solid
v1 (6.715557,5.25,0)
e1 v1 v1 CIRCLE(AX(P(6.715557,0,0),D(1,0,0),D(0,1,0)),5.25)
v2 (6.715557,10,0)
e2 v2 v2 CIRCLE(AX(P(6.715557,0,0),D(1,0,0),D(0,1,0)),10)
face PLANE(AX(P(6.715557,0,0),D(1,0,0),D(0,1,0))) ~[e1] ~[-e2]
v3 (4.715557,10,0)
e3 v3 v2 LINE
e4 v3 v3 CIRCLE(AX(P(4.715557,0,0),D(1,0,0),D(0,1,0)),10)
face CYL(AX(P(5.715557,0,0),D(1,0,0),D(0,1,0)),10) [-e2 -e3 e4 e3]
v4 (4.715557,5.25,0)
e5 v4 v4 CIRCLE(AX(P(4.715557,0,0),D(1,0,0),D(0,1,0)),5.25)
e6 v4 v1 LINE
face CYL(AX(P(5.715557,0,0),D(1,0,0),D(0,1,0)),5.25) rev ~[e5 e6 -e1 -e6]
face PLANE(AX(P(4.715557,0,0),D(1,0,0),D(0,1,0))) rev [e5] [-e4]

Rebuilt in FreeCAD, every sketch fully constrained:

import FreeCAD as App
import Part
import Sketcher
from FreeCAD import Vector
Q = App.Units.Quantity

doc = App.newDocument("Part")
body = doc.addObject("PartDesign::Body", "Body")

# Sketch on XY plane
sketch1 = body.newObject("Sketcher::SketchObject", "Sketch")
sketch1.AttachmentSupport = (doc.getObject("XY_Plane"), [""])
sketch1.MapMode = "FlatFace"
sketch1.addGeometry([
    Part.LineSegment(Vector(4.7, 10, 0), Vector(4.7, 5.2, 0)),
    Part.LineSegment(Vector(4.7, 5.2, 0), Vector(6.7, 5.2, 0)),
    Part.LineSegment(Vector(6.7, 5.2, 0), Vector(6.7, 10, 0)),
    Part.LineSegment(Vector(6.7, 10, 0), Vector(4.7, 10, 0)),
], False)
sketch1.addConstraint([
    Sketcher.Constraint("Coincident", 0, 2, 1, 1),
    Sketcher.Constraint("Coincident", 1, 2, 2, 1),
    Sketcher.Constraint("Coincident", 2, 2, 3, 1),
    Sketcher.Constraint("Coincident", 3, 2, 0, 1),
    Sketcher.Constraint("Vertical", 0),
    Sketcher.Constraint("Horizontal", 1),
    Sketcher.Constraint("Vertical", 2),
    Sketcher.Constraint("Horizontal", 3),
    Sketcher.Constraint("DistanceX", 1, 1, 1, 2, Q("2 mm")),
    Sketcher.Constraint("DistanceY", -1, 1, 2, 2, Q("10 mm")),
    Sketcher.Constraint("DistanceY", 0, 2, 0, 1, Q("4.75 mm")),
    Sketcher.Constraint("DistanceX", -1, 1, 0, 2, Q("4.715557 mm")),
])
revolution = body.newObject("PartDesign::Revolution", "Revolution")
revolution.Profile = sketch1
revolution.ReferenceAxis = (sketch1, ["H_Axis"])
revolution.Angle = 360

doc.recompute()
